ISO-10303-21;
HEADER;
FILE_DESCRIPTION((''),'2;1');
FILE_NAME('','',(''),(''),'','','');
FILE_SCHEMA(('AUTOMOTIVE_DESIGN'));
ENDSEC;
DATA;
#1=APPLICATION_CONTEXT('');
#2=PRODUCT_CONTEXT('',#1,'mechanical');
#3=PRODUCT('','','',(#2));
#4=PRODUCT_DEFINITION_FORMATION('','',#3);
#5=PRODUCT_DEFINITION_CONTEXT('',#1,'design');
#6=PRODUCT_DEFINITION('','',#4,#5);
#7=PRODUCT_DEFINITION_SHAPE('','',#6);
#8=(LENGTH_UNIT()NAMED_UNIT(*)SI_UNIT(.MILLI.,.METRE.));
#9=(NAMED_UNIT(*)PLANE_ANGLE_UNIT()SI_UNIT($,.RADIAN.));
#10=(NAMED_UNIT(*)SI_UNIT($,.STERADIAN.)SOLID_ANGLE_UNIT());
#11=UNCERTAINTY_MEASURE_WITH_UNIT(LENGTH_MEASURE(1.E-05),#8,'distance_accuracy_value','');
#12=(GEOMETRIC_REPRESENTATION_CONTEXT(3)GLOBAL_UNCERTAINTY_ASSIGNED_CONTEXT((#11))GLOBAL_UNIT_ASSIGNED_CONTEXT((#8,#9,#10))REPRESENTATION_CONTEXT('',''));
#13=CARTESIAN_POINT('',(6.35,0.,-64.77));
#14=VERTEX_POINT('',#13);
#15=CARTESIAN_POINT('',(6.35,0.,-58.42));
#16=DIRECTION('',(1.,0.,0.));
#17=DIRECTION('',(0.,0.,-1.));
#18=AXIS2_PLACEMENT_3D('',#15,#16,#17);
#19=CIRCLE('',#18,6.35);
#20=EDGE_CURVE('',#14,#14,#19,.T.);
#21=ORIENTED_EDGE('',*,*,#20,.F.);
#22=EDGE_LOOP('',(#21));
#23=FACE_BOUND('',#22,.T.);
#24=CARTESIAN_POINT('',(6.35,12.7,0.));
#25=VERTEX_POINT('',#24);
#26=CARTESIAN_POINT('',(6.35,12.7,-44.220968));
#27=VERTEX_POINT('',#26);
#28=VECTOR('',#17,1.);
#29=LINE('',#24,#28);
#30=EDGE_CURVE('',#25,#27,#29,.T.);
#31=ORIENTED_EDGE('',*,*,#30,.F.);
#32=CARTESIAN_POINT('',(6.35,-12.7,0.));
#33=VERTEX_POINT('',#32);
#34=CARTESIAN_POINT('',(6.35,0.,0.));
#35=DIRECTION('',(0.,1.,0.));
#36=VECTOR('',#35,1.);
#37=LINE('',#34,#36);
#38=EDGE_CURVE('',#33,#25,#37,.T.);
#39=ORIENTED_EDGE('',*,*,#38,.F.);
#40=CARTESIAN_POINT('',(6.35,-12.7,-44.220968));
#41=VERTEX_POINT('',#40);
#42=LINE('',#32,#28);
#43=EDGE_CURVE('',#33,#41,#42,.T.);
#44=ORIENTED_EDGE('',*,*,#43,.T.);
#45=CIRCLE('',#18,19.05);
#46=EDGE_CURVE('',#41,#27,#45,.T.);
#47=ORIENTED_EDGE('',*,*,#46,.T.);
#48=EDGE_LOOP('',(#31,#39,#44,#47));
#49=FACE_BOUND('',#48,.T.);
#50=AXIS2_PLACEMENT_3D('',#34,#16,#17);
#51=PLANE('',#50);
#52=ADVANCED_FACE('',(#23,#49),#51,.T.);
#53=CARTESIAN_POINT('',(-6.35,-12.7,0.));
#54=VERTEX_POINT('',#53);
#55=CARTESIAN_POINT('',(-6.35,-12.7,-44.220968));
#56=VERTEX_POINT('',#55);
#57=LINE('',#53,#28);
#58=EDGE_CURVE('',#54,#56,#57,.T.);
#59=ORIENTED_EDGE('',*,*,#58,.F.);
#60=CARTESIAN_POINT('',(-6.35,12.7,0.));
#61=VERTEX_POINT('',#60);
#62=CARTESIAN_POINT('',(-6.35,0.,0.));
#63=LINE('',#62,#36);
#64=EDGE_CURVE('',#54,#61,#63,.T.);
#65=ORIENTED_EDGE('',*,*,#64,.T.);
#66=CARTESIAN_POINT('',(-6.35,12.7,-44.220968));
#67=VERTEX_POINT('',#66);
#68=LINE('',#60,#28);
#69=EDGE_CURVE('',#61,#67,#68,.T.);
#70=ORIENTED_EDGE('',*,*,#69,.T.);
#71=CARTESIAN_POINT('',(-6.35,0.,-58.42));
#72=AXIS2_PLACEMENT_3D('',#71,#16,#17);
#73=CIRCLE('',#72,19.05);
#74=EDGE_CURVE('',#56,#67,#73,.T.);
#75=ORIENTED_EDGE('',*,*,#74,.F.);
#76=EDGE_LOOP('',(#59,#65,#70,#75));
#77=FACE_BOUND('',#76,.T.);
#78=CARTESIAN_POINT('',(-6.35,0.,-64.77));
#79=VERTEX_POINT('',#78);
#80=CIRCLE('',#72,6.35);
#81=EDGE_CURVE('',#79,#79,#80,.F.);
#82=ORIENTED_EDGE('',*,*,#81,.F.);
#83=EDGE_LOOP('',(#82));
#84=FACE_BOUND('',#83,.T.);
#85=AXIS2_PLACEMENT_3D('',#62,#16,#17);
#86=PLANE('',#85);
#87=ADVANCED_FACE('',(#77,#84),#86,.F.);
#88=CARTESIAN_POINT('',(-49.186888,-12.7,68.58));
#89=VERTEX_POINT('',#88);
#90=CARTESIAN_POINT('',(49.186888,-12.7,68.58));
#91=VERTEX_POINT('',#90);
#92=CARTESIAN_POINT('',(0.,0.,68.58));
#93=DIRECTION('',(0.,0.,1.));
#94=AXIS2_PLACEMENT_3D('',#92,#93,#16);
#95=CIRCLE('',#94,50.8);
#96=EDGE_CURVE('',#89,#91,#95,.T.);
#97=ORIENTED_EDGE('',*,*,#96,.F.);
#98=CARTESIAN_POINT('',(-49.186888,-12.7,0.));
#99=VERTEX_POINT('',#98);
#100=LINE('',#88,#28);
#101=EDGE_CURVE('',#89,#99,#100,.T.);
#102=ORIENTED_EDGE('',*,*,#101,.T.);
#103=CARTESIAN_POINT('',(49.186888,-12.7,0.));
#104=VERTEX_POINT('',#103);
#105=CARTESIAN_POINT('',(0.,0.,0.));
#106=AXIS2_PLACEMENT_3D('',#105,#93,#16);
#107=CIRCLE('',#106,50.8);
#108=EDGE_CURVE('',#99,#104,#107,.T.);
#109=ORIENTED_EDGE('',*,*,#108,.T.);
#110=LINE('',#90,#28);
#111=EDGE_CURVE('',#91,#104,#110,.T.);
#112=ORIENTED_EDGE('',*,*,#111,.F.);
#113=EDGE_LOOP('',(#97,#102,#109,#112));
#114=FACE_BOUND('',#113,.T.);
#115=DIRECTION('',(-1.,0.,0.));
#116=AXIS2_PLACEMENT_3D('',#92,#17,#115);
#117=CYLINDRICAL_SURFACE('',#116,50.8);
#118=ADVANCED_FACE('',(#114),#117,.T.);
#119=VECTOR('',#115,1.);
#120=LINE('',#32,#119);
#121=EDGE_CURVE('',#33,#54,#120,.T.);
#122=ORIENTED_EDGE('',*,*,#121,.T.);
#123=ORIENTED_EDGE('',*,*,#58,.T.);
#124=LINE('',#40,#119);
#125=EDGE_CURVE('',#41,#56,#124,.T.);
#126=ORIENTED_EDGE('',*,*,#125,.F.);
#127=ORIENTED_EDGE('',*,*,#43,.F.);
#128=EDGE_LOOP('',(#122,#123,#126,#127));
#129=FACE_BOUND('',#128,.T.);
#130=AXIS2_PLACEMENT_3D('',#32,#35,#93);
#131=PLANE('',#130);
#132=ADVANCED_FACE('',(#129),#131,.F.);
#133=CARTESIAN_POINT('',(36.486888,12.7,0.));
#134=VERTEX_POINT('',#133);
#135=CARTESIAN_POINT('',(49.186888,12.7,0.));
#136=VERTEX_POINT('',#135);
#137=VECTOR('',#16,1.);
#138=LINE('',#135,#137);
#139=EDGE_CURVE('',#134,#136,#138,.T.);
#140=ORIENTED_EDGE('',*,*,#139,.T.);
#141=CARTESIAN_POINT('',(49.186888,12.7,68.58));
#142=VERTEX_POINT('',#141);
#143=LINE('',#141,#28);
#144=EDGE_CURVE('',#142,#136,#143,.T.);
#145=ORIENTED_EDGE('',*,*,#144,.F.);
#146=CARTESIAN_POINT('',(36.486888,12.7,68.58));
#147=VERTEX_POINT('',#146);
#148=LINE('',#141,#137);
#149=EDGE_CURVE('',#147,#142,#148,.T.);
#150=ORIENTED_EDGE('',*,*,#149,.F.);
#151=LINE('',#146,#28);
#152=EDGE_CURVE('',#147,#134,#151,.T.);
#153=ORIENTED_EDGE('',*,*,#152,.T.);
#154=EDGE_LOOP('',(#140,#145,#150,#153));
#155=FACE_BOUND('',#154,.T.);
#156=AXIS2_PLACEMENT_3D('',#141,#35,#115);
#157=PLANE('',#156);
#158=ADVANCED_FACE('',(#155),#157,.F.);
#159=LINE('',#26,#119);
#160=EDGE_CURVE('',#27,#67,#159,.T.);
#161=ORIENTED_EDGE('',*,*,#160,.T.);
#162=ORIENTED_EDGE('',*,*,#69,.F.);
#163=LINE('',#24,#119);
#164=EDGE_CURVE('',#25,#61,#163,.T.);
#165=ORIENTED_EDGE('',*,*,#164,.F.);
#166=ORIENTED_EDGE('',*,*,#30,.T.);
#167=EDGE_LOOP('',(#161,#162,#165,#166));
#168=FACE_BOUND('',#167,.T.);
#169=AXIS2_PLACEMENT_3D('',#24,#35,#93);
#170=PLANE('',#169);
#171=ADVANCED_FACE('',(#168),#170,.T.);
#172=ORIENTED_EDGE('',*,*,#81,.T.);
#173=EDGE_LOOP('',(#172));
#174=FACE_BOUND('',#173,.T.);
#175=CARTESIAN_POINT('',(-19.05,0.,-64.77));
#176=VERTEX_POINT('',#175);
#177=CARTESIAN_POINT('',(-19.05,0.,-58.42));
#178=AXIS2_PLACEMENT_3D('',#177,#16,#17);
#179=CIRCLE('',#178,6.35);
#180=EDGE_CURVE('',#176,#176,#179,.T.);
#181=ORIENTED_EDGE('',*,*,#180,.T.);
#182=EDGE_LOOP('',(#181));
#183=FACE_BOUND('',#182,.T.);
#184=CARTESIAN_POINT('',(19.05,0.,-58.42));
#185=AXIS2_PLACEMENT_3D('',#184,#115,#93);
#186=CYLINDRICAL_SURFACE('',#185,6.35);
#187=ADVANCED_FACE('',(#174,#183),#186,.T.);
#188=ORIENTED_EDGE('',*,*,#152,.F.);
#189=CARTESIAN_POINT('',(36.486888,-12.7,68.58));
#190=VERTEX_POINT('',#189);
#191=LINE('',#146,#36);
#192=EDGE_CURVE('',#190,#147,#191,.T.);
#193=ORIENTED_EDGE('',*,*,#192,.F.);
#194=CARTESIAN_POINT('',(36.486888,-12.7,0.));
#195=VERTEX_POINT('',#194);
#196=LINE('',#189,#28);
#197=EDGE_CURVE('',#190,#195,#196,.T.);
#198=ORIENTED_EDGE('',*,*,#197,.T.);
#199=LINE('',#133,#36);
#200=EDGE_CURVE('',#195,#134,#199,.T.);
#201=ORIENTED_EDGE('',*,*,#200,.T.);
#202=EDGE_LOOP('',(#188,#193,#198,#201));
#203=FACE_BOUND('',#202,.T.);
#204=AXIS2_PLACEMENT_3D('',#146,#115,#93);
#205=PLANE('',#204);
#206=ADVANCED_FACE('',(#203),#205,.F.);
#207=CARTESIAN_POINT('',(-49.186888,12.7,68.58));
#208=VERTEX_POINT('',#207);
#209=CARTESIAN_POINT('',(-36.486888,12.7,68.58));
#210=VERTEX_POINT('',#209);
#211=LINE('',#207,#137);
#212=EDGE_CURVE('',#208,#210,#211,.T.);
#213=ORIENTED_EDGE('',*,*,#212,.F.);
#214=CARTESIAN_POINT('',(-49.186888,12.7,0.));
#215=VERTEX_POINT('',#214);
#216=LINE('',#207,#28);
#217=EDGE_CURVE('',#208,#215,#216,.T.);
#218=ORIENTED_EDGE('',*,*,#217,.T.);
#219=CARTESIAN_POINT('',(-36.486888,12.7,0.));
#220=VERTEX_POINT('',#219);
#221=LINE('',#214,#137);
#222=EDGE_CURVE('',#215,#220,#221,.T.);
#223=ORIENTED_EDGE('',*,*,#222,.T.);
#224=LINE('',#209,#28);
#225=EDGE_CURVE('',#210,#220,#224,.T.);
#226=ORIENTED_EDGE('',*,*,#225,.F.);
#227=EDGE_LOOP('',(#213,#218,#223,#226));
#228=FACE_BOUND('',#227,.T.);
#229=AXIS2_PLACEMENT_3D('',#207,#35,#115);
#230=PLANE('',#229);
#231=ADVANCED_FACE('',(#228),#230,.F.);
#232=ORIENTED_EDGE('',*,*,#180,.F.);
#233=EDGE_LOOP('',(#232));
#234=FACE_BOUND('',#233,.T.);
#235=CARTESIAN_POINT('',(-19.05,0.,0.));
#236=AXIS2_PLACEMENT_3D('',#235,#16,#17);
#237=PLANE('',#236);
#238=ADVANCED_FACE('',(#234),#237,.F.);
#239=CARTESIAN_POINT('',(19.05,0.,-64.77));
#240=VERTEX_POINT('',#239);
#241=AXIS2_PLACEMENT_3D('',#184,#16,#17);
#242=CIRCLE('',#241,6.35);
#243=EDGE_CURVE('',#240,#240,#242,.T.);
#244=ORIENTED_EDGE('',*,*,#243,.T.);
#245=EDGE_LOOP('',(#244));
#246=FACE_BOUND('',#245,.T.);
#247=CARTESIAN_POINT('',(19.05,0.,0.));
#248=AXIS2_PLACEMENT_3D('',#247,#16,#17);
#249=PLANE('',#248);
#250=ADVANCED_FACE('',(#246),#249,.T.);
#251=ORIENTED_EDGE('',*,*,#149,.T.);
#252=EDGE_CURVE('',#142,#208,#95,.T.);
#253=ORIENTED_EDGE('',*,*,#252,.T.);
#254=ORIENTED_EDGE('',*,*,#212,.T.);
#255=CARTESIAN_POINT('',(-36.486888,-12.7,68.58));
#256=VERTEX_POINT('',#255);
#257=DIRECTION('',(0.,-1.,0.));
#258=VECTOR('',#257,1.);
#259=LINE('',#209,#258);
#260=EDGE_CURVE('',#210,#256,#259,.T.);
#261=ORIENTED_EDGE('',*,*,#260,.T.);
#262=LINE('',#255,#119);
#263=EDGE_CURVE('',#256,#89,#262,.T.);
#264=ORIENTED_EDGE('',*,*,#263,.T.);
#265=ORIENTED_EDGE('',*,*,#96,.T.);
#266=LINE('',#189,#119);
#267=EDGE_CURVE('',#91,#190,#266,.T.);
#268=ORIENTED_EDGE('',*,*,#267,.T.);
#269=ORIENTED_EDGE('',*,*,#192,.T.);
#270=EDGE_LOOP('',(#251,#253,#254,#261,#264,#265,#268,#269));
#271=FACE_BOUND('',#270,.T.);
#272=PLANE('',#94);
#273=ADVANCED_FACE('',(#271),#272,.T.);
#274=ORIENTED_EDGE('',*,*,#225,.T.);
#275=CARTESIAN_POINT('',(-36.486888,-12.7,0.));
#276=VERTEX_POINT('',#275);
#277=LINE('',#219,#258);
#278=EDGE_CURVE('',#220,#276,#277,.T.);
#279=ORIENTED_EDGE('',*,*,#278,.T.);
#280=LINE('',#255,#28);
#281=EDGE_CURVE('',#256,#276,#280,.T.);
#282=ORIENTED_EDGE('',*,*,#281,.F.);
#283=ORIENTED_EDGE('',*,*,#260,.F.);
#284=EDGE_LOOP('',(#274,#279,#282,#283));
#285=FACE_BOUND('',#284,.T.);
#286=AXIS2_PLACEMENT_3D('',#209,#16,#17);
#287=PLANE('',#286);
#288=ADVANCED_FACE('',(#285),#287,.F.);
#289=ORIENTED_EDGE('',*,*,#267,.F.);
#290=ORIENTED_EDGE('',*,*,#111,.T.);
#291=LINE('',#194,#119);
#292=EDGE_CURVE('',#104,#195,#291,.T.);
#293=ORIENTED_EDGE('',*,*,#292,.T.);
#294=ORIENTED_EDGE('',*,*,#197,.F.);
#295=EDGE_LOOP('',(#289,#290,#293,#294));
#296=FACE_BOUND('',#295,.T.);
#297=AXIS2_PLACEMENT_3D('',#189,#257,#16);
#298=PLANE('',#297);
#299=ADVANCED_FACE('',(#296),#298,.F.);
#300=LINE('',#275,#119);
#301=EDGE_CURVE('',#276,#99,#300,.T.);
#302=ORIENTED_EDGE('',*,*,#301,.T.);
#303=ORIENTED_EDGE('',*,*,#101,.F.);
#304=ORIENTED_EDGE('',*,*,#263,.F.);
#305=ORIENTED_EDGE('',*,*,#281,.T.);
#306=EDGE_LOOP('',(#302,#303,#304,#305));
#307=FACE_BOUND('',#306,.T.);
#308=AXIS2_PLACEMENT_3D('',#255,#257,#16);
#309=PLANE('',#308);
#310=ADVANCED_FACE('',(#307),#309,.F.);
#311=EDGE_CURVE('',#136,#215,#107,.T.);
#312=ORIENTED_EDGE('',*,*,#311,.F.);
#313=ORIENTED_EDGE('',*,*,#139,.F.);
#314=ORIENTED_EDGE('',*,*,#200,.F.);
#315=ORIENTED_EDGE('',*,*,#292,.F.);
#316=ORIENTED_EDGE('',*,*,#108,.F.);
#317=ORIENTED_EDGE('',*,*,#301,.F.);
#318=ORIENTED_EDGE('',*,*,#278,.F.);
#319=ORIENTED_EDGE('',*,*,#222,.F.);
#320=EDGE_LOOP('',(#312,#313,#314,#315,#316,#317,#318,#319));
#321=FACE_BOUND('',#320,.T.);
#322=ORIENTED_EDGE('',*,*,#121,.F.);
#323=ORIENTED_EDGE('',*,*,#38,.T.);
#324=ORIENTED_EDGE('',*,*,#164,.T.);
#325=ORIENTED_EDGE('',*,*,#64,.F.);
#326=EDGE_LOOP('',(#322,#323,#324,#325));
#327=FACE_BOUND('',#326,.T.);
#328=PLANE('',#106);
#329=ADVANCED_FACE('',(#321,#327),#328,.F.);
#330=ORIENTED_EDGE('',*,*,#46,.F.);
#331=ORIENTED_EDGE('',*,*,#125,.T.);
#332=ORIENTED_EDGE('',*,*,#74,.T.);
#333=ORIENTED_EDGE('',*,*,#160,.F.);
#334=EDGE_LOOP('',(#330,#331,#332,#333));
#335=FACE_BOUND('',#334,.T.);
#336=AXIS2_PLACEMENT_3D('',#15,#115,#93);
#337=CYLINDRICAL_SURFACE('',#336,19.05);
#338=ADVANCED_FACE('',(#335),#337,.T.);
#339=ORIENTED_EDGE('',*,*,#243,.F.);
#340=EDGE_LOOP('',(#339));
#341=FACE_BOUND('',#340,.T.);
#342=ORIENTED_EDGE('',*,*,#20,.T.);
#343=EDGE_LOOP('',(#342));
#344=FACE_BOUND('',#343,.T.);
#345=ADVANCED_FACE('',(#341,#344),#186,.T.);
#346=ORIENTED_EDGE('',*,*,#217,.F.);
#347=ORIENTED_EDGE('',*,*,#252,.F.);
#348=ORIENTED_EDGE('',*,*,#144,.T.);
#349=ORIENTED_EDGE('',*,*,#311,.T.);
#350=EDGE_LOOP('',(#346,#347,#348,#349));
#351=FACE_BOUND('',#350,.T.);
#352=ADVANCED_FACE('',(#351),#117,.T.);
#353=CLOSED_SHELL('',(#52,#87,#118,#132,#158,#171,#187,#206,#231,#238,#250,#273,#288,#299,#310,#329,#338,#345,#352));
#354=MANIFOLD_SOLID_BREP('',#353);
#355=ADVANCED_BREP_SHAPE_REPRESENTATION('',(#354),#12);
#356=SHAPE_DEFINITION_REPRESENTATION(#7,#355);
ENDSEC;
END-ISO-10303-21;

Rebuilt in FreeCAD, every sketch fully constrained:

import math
import FreeCAD as App
import Part
import Sketcher
from FreeCAD import Vector
Q = App.Units.Quantity

doc = App.newDocument("Part")
params = doc.addObject("Spreadsheet::Sheet", "Params")
for row, (alias, value) in enumerate([
    ("sketch1_radius", "2 in"),
    ("sketch1_height", "1 in"),
    ("sketch1_width", "0.5 in"),
    ("pad1_length", "2.7 in"),
    ("sketch2_diameter", "0.5 in"),
    ("sketch2_width", "1 in"),
    ("sketch2_radius", "0.75 in"),
    ("pad2_length", "0.5 in"),
    ("sketch3_diameter", "0.5 in"),
    ("pad3_length", "1.5 in"),
], start=1):
    params.set(f"A{row}", alias)
    params.set(f"B{row}", "=" + value)
    params.setAlias(f"B{row}", alias)

body = doc.addObject("PartDesign::Body", "Body")

sketch1 = body.newObject("Sketcher::SketchObject", "Sketch")
sketch1.AttachmentSupport = (doc.getObject("XY_Plane"), [""])
sketch1.MapMode = "FlatFace"
sketch1.addGeometry([
    Part.LineSegment(Vector(-49.186888, 12.7, 0), Vector(-36.486888, 12.7, 0)),
    Part.LineSegment(Vector(-36.486888, 12.7, 0), Vector(-36.486888, -12.7, 0)),
    Part.LineSegment(Vector(-36.486888, -12.7, 0), Vector(-49.186888, -12.7, 0)),
    Part.ArcOfCircle(Part.Circle(Vector(0, 0, 0), Vector(0, 0, 1), 50.8), math.radians(-165.522488), math.radians(-14.477512)),
    Part.LineSegment(Vector(49.186888, -12.7, 0), Vector(36.486888, -12.7, 0)),
    Part.LineSegment(Vector(36.486888, -12.7, 0), Vector(36.486888, 12.7, 0)),
    Part.LineSegment(Vector(36.486888, 12.7, 0), Vector(49.186888, 12.7, 0)),
    Part.ArcOfCircle(Part.Circle(Vector(0, 0, 0), Vector(0, 0, 1), 50.8), math.radians(14.477512), math.radians(165.522488)),
], False)
sketch1.addConstraint([
    Sketcher.Constraint("Coincident", 0, 2, 1, 1),
    Sketcher.Constraint("Coincident", 1, 2, 2, 1),
    Sketcher.Constraint("Coincident", 2, 2, 3, 1),
    Sketcher.Constraint("Coincident", 3, 2, 4, 1),
    Sketcher.Constraint("Coincident", 4, 2, 5, 1),
    Sketcher.Constraint("Coincident", 5, 2, 6, 1),
    Sketcher.Constraint("Coincident", 6, 2, 7, 1),
    Sketcher.Constraint("Coincident", 7, 2, 0, 1),
    Sketcher.Constraint("Horizontal", 0),
    Sketcher.Constraint("Vertical", 1),
    Sketcher.Constraint("Horizontal", 2),
    Sketcher.Constraint("Horizontal", 4),
    Sketcher.Constraint("Vertical", 5),
    Sketcher.Constraint("Horizontal", 6),
    Sketcher.Constraint("Coincident", 3, 3, -1, 1),
    Sketcher.Constraint("Coincident", 7, 3, -1, 1),
    Sketcher.Constraint("Equal", 3, 7),
    Sketcher.Constraint("Symmetric", 0, 2, 4, 2, -1, 1),
    Sketcher.Constraint("Horizontal", 2, 2, 3, 2),
    Sketcher.Constraint("Horizontal", 0, 2, 5, 2),
    Sketcher.Constraint("Radius", 3, Q("2 in")),
    Sketcher.Constraint("DistanceY", 1, 2, 1, 1, Q("1 in")),
    Sketcher.Constraint("DistanceX", 0, 1, 0, 2, Q("0.5 in")),
])
sketch1.setExpression("Constraints[20]", "Params.sketch1_radius")
sketch1.setExpression("Constraints[21]", "Params.sketch1_height")
sketch1.setExpression("Constraints[22]", "Params.sketch1_width")
pad1 = body.newObject("PartDesign::Pad", "Pad")
pad1.Profile = sketch1
pad1.setExpression("Length", "Params.pad1_length")

sketch2 = body.newObject("Sketcher::SketchObject", "Sketch001")
sketch2.AttachmentSupport = (doc.getObject("YZ_Plane"), [""])
sketch2.MapMode = "FlatFace"
sketch2.addGeometry([
    Part.LineSegment(Vector(12.7, -44.220968, 0), Vector(12.7, 0, 0)),
    Part.LineSegment(Vector(12.7, 0, 0), Vector(-12.7, 0, 0)),
    Part.LineSegment(Vector(-12.7, 0, 0), Vector(-12.7, -44.220968, 0)),
    Part.ArcOfCircle(Part.Circle(Vector(0, -58.42, 0), Vector(0, 0, 1), 19.05), math.radians(131.810315), math.radians(408.189685)),
    Part.Circle(Vector(0, -58.42, 0), Vector(0, 0, 1), 6.35),
], False)
sketch2.addConstraint([
    Sketcher.Constraint("Coincident", 0, 2, 1, 1),
    Sketcher.Constraint("Coincident", 1, 2, 2, 1),
    Sketcher.Constraint("Coincident", 2, 2, 3, 1),
    Sketcher.Constraint("Coincident", 3, 2, 0, 1),
    Sketcher.Constraint("Vertical", 0),
    Sketcher.Constraint("Horizontal", 1),
    Sketcher.Constraint("Vertical", 2),
    Sketcher.Constraint("Coincident", 4, 3, 3, 3),
    Sketcher.Constraint("Symmetric", 0, 2, 1, 2, -1, 1),
    Sketcher.Constraint("PointOnObject", 3, 3, -2),
    Sketcher.Constraint("Diameter", 4, Q("0.5 in")),
    Sketcher.Constraint("DistanceX", 1, 2, 1, 1, Q("1 in")),
    Sketcher.Constraint("Radius", 3, Q("0.75 in")),
    Sketcher.Constraint("DistanceY", 3, 3, -1, 1, Q("2.3 in")),
])
sketch2.setExpression("Constraints[10]", "Params.sketch2_diameter")
sketch2.setExpression("Constraints[11]", "Params.sketch2_width")
sketch2.setExpression("Constraints[12]", "Params.sketch2_radius")
pad2 = body.newObject("PartDesign::Pad", "Pad001")
pad2.Profile = sketch2
pad2.setExpression("Length", "Params.pad2_length")
pad2.Midplane = True

sketch3 = body.newObject("Sketcher::SketchObject", "Sketch002")
sketch3.AttachmentSupport = (doc.getObject("YZ_Plane"), [""])
sketch3.MapMode = "FlatFace"
sketch3.addGeometry(Part.Circle(Vector(0, -58.42, 0), Vector(0, 0, 1), 6.35), False)
sketch3.addConstraint([
    Sketcher.Constraint("PointOnObject", 0, 3, -2),
    Sketcher.Constraint("Diameter", 0, Q("0.5 in")),
    Sketcher.Constraint("DistanceY", 0, 3, -1, 1, Q("2.3 in")),
])
sketch3.setExpression("Constraints[1]", "Params.sketch3_diameter")
pad3 = body.newObject("PartDesign::Pad", "Pad002")
pad3.Profile = sketch3
pad3.setExpression("Length", "Params.pad3_length")
pad3.Midplane = True

doc.recompute()
